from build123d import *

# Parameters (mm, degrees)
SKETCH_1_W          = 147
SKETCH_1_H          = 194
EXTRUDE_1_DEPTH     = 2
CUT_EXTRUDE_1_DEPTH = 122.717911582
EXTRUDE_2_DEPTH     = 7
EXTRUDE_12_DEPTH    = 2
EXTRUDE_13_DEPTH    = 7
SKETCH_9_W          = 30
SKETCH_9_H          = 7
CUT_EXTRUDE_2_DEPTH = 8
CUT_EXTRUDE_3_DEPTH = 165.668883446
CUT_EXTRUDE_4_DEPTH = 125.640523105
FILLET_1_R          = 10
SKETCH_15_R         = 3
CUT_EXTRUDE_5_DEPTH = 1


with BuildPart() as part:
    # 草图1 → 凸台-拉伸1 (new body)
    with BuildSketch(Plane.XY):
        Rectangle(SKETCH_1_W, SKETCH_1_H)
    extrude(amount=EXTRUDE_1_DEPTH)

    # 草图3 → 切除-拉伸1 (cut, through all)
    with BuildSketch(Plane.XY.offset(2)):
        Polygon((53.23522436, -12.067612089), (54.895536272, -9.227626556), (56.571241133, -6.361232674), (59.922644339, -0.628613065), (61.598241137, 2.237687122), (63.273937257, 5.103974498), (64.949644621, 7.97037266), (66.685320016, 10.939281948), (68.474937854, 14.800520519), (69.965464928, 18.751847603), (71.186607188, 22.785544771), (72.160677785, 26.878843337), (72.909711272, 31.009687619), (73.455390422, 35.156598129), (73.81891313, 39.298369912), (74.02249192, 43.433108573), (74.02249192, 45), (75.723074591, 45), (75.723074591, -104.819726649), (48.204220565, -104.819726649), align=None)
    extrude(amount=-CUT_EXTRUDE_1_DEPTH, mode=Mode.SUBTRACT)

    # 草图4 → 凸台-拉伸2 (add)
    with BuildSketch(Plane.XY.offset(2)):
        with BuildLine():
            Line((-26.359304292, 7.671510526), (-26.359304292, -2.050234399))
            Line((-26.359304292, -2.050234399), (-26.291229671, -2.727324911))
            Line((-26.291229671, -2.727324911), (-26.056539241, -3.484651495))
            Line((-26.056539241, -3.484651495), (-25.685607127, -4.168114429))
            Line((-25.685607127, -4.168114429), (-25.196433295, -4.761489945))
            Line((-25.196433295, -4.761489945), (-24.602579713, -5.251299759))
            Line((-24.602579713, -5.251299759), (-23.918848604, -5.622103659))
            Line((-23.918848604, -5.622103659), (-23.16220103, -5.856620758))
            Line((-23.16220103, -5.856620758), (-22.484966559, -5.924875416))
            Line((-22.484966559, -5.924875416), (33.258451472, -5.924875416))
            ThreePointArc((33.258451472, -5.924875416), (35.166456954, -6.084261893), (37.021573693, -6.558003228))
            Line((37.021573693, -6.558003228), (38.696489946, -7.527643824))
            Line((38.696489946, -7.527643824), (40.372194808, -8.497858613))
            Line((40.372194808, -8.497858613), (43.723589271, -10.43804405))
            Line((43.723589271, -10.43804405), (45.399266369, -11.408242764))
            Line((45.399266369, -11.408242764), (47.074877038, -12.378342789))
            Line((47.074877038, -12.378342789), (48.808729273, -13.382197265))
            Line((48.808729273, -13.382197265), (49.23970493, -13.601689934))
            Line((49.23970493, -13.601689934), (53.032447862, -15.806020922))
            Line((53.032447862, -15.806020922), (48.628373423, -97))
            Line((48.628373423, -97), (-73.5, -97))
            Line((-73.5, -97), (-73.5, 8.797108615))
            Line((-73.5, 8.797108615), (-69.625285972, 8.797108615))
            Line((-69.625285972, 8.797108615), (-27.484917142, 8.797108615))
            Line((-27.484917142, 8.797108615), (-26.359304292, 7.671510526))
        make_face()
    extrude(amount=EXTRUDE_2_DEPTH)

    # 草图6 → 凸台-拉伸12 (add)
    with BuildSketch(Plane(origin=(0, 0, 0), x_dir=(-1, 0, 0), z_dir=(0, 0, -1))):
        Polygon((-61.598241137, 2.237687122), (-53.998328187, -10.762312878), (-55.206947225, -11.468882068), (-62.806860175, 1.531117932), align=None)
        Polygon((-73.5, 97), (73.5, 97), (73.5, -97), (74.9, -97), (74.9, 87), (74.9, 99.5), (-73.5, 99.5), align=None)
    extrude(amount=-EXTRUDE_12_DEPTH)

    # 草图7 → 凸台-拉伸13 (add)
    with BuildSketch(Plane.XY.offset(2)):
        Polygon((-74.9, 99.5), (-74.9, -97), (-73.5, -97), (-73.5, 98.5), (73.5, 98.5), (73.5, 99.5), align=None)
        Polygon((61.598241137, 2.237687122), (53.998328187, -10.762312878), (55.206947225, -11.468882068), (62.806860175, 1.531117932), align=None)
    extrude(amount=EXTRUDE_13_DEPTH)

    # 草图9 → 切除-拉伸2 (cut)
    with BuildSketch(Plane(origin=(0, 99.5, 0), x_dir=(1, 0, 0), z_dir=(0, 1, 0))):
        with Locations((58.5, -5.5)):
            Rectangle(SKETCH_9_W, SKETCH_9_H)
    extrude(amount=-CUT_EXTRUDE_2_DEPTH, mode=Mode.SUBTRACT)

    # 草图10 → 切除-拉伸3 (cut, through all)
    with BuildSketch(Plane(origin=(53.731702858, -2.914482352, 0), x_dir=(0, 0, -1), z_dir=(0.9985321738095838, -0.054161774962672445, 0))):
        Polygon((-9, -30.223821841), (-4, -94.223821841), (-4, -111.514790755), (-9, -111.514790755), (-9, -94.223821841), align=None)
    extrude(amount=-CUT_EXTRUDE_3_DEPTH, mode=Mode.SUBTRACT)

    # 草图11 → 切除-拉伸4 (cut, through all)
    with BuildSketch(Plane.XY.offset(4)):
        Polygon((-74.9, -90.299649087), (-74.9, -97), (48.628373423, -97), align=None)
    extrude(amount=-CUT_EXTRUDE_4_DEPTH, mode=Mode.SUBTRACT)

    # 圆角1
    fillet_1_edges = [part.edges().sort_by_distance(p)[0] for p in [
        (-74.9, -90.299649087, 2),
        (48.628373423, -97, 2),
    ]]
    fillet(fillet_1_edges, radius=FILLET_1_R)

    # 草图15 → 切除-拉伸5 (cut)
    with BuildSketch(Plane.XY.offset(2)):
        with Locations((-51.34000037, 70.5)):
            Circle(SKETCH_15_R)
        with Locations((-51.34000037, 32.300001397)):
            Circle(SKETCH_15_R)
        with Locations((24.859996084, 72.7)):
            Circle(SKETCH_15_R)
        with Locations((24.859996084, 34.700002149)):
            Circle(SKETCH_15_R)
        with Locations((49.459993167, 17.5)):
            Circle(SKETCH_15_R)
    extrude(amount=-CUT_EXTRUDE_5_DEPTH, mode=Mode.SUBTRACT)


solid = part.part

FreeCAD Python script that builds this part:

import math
import FreeCAD as App
import Part
import Sketcher


def edges_at(feature, points):
    """Names of the edges that pass closest to the given points."""
    edges = feature.Shape.Edges
    near = lambda p: min(range(len(edges)), key=lambda i: edges[i].distToShape(Part.Vertex(*p))[0])
    return sorted({f"Edge{near(p) + 1}" for p in points})


def add_polygon(sketch, points):
    """Adds a closed chain of lines whose ends are joined by coincident constraints."""
    first, n = sketch.GeometryCount, len(points)
    for a, b in zip(points, points[1:] + points[:1]):
        sketch.addGeometry(Part.LineSegment(App.Vector(*a, 0), App.Vector(*b, 0)), False)
    for i in range(n):
        sketch.addConstraint(Sketcher.Constraint("Coincident", first + i, 2, first + (i + 1) % n, 1))

doc = App.newDocument("Part")
body = doc.addObject("PartDesign::Body", "Body")

# Sketch on XY plane
sketch1 = body.newObject("Sketcher::SketchObject", "Sketch")
sketch1.AttachmentSupport = (doc.getObject("XY_Plane"), [""])
sketch1.MapMode = "FlatFace"
add_polygon(sketch1, [(-74, 97), (-74, -97), (74, -97), (74, 97)])  # lines 0-3
sketch1.addConstraint([
    Sketcher.Constraint("Vertical", 0),
    Sketcher.Constraint("Horizontal", 1),
    Sketcher.Constraint("Vertical", 2),
    Sketcher.Constraint("Horizontal", 3),
    Sketcher.Constraint("Symmetric", 0, 2, 2, 2, -1, 1),
    Sketcher.Constraint("DistanceX", 1, 1, 1, 2, 147.0),
    Sketcher.Constraint("DistanceY", 0, 2, 0, 1, 194.0),
])
pad1 = body.newObject("PartDesign::Pad", "Pad")
pad1.Profile = sketch1
pad1.Length = 2

# Sketch on XY plane
sketch2 = body.newObject("Sketcher::SketchObject", "Sketch001")
sketch2.AttachmentSupport = (doc.getObject("XY_Plane"), [""])
sketch2.MapMode = "FlatFace"
sketch2.AttachmentOffset = App.Placement(App.Vector(0, 0, 2), App.Rotation())
add_polygon(sketch2, [(54.9, -9.2), (53.2, -12.1), (48.2, -104.8), (75.7, -104.8), (75.7, 45), (74, 45), (74, 43.4), (73.8, 39.3), (73.5, 35.2), (72.9, 31), (72.2, 26.9), (71.2, 22.8), (70, 18.8), (68.5, 14.8), (66.7, 10.9), (64.9, 8), (63.3, 5.1), (61.6, 2.2), (59.9, -0.6), (56.6, -6.4)])  # lines 0-19
sketch2.addConstraint([
    Sketcher.Constraint("Horizontal", 2),
    Sketcher.Constraint("Vertical", 3),
    Sketcher.Constraint("Horizontal", 4),
    Sketcher.Constraint("Vertical", 5),
    Sketcher.Constraint("Parallel", 0, 14),
    Sketcher.Constraint("Parallel", 0, 16),
    Sketcher.Constraint("Parallel", 16, 18),
    Sketcher.Constraint("Parallel", 15, 19),
    Sketcher.Constraint("DistanceY", -1, 1, 3, 2, 45.0),
    Sketcher.Constraint("DistanceX", 15, 2, 12, 2, 5.201001),
    Sketcher.Constraint("DistanceX", 17, 2, 14, 2, 5.027),
    Sketcher.Constraint("DistanceY", 0, 2, 17, 2, 11.438999),
    Sketcher.Constraint("DistanceX", 18, 2, 16, 2, 5.027),
    Sketcher.Constraint("Distance", 10, 4.207601),
    Sketcher.Constraint("DistanceY", 5, 2, 5, 1, 1.566891),
    Sketcher.Constraint("DistanceY", -1, 1, 7, 2, 35.156598),
    Sketcher.Constraint("DistanceX", 7, 2, 5, 2, 0.567101),
    Sketcher.Constraint("DistanceX", 8, 2, 6, 2, 0.909202),
    Sketcher.Constraint("DistanceY", 10, 2, 9, 2, 4.093299),
    Sketcher.Constraint("DistanceY", 15, 2, 14, 2, 2.866398),
    Sketcher.Constraint("DistanceY", 0, 2, 16, 2, 14.305299),
    Sketcher.Constraint("DistanceX", 19, 2, 15, 2, 8.378401),
    Sketcher.Constraint("DistanceY", 19, 2, 15, 2, 14.331601),
    Sketcher.Constraint("Distance", 1, 92.888459),
    Sketcher.Constraint("Distance", 8, 4.182659),
    Sketcher.Constraint("Distance", 12, 4.22311),
    Sketcher.Constraint("Distance", 14, 3.439039),
    Sketcher.Constraint("Distance", 19, 3.320271),
    Sketcher.Constraint("DistanceX", 2, 1, 2, 2, 27.518854),
    Sketcher.Constraint("DistanceX", 4, 2, 4, 1, 1.700583),
    Sketcher.Constraint("DistanceY", 3, 1, 3, 2, 149.819727),
    Sketcher.Constraint("DistanceX", -1, 1, 1, 2, 48.204221),
    Sketcher.Constraint("DistanceY", -1, 1, 6, 2, 39.29837),
    Sketcher.Constraint("DistanceX", -1, 1, 8, 2, 72.909711),
    Sketcher.Constraint("DistanceY", -1, 1, 12, 2, 14.800521),
    Sketcher.Constraint("DistanceX", -1, 1, 13, 2, 66.68532),
    Sketcher.Constraint("DistanceY", -1, 1, 13, 2, 10.939282),
    Sketcher.Constraint("DistanceY", 11, 2, 8, 2, 12.25784),
    Sketcher.Constraint("DistanceX", 12, 2, 10, 2, 2.711669),
    Sketcher.Constraint("DistanceY", 13, 2, 9, 2, 15.939561),
])
pocket1 = body.newObject("PartDesign::Pocket", "Pocket")
pocket1.Profile = sketch2
pocket1.Type = "ThroughAll"

# Sketch on XY plane
sketch3 = body.newObject("Sketcher::SketchObject", "Sketch002")
sketch3.AttachmentSupport = (doc.getObject("XY_Plane"), [""])
sketch3.MapMode = "FlatFace"
sketch3.AttachmentOffset = App.Placement(App.Vector(0, 0, 2), App.Rotation())
sketch3.addGeometry([
    Part.LineSegment(App.Vector(-26.36, -2.05, 0), App.Vector(-26.36, 7.67, 0)),  # 0
    Part.LineSegment(App.Vector(-26.36, 7.67, 0), App.Vector(-27.48, 8.8, 0)),  # 1
    Part.LineSegment(App.Vector(-27.48, 8.8, 0), App.Vector(-73.5, 8.8, 0)),  # 2
    Part.LineSegment(App.Vector(-73.5, 8.8, 0), App.Vector(-73.5, -97, 0)),  # 3
    Part.LineSegment(App.Vector(-73.5, -97, 0), App.Vector(48.63, -97, 0)),  # 4
    Part.LineSegment(App.Vector(48.63, -97, 0), App.Vector(53.03, -15.81, 0)),  # 5
    Part.LineSegment(App.Vector(53.03, -15.81, 0), App.Vector(49.24, -13.6, 0)),  # 6
    Part.LineSegment(App.Vector(49.24, -13.6, 0), App.Vector(48.81, -13.38, 0)),  # 7
    Part.LineSegment(App.Vector(48.81, -13.38, 0), App.Vector(47.07, -12.38, 0)),  # 8
    Part.LineSegment(App.Vector(47.07, -12.38, 0), App.Vector(45.4, -11.41, 0)),  # 9
    Part.LineSegment(App.Vector(45.4, -11.41, 0), App.Vector(43.72, -10.44, 0)),  # 10
    Part.LineSegment(App.Vector(43.72, -10.44, 0), App.Vector(40.37, -8.5, 0)),  # 11
    Part.LineSegment(App.Vector(40.37, -8.5, 0), App.Vector(38.7, -7.53, 0)),  # 12
    Part.LineSegment(App.Vector(38.7, -7.53, 0), App.Vector(37.02, -6.56, 0)),  # 13
    Part.ArcOfCircle(Part.Circle(App.Vector(33.26, -17.42, 0), App.Vector(0, 0, 1), 11.5), math.radians(70.9), math.radians(90)),  # 14
    Part.LineSegment(App.Vector(33.26, -5.92, 0), App.Vector(-22.48, -5.92, 0)),  # 15
    Part.LineSegment(App.Vector(-22.48, -5.92, 0), App.Vector(-23.16, -5.86, 0)),  # 16
    Part.LineSegment(App.Vector(-23.16, -5.86, 0), App.Vector(-23.92, -5.62, 0)),  # 17
    Part.LineSegment(App.Vector(-23.92, -5.62, 0), App.Vector(-24.6, -5.25, 0)),  # 18
    Part.LineSegment(App.Vector(-24.6, -5.25, 0), App.Vector(-25.2, -4.76, 0)),  # 19
    Part.LineSegment(App.Vector(-25.2, -4.76, 0), App.Vector(-25.69, -4.17, 0)),  # 20
    Part.LineSegment(App.Vector(-25.69, -4.17, 0), App.Vector(-26.06, -3.48, 0)),  # 21
    Part.LineSegment(App.Vector(-26.06, -3.48, 0), App.Vector(-26.29, -2.73, 0)),  # 22
    Part.LineSegment(App.Vector(-26.29, -2.73, 0), App.Vector(-26.36, -2.05, 0)),  # 23
], False)
sketch3.addConstraint([
    Sketcher.Constraint("Coincident", 0, 2, 1, 1),
    Sketcher.Constraint("Coincident", 1, 2, 2, 1),
    Sketcher.Constraint("Coincident", 2, 2, 3, 1),
    Sketcher.Constraint("Coincident", 3, 2, 4, 1),
    Sketcher.Constraint("Coincident", 4, 2, 5, 1),
    Sketcher.Constraint("Coincident", 5, 2, 6, 1),
    Sketcher.Constraint("Coincident", 6, 2, 7, 1),
    Sketcher.Constraint("Coincident", 7, 2, 8, 1),
    Sketcher.Constraint("Coincident", 8, 2, 9, 1),
    Sketcher.Constraint("Coincident", 9, 2, 10, 1),
    Sketcher.Constraint("Coincident", 10, 2, 11, 1),
    Sketcher.Constraint("Coincident", 11, 2, 12, 1),
    Sketcher.Constraint("Coincident", 12, 2, 13, 1),
    Sketcher.Constraint("Coincident", 13, 2, 14, 1),
    Sketcher.Constraint("Tangent", 14, 2, 15, 1),
    Sketcher.Constraint("Coincident", 15, 2, 16, 1),
    Sketcher.Constraint("Coincident", 16, 2, 17, 1),
    Sketcher.Constraint("Coincident", 17, 2, 18, 1),
    Sketcher.Constraint("Coincident", 18, 2, 19, 1),
    Sketcher.Constraint("Coincident", 19, 2, 20, 1),
    Sketcher.Constraint("Coincident", 20, 2, 21, 1),
    Sketcher.Constraint("Coincident", 21, 2, 22, 1),
    Sketcher.Constraint("Coincident", 22, 2, 23, 1),
    Sketcher.Constraint("Coincident", 23, 2, 0, 1),
    Sketcher.Constraint("Vertical", 0),
    Sketcher.Constraint("Horizontal", 2),
    Sketcher.Constraint("Vertical", 3),
    Sketcher.Constraint("Horizontal", 4),
    Sketcher.Constraint("Horizontal", 15),
    Sketcher.Constraint("Parallel", 10, 12),
    Sketcher.Constraint("Parallel", 11, 13),
    Sketcher.Constraint("Radius", 14, 11.5),
    Sketcher.Constraint("DistanceY", 3, 2, -1, 1, 97.0),
    Sketcher.Constraint("DistanceX", 2, 2, -1, 1, 73.5),
    Sketcher.Constraint("DistanceY", 19, 2, 0, 2, 12.433),
    Sketcher.Constraint("DistanceX", 15, 2, 15, 1, 55.743418),
    Sketcher.Constraint("DistanceY", 3, 2, 3, 1, 105.797109),
    Sketcher.Constraint("DistanceX", 16, 2, -1, 1, 23.162201),
    Sketcher.Constraint("DistanceY", 18, 2, -1, 1, 5.2513),
    Sketcher.Constraint("DistanceY", 0, 2, 1, 2, 1.125598),
    Sketcher.Constraint("DistanceY", 6, 2, 0, 2, 21.2732),
    Sketcher.Constraint("DistanceY", 8, 2, 9, 2, 0.9701),
    Sketcher.Constraint("DistanceY", 9, 2, 10, 2, 0.970199),
    Sketcher.Constraint("DistanceX", 12, 2, 10, 2, 5.027099),
    Sketcher.Constraint("DistanceY", 10, 2, 12, 2, 2.9104),
    Sketcher.Constraint("Distance", 7, 0.48365),
    Sketcher.Constraint("Distance", 8, 2.003489),
    Sketcher.Constraint("Distance", 10, 1.93628),
    Sketcher.Constraint("Distance", 11, 3.872488),
    Sketcher.Constraint("Distance", 13, 1.935342),
    Sketcher.Constraint("Distance", 19, 0.769789),
    Sketcher.Constraint("DistanceX", 2, 2, 2, 1, 46.015083),
    Sketcher.Constraint("DistanceX", 4, 1, 4, 2, 122.128373),
    Sketcher.Constraint("DistanceY", 0, 1, 0, 2, 9.721745),
    Sketcher.Constraint("DistanceX", -1, 1, 14, 3, 33.258451),
    Sketcher.Constraint("DistanceY", 5, 2, -1, 1, 15.806021),
    Sketcher.Constraint("DistanceX", -1, 1, 7, 2, 48.808729),
    Sketcher.Constraint("DistanceX", -1, 1, 10, 2, 43.723589),
    Sketcher.Constraint("DistanceY", 11, 2, -1, 1, 8.497859),
    Sketcher.Constraint("DistanceY", 16, 2, -1, 1, 5.856621),
    Sketcher.Constraint("DistanceX", 17, 2, -1, 1, 23.918849),
    Sketcher.Constraint("DistanceX", 18, 2, -1, 1, 24.60258),
    Sketcher.Constraint("DistanceX", 21, 2, -1, 1, 26.056539),
    Sketcher.Constraint("DistanceY", 21, 2, -1, 1, 3.484651),
    Sketcher.Constraint("DistanceX", 22, 2, -1, 1, 26.29123),
    Sketcher.Constraint("DistanceX", 0, 2, 6, 2, 75.599009),
    Sketcher.Constraint("DistanceX", 4, 2, 6, 2, 0.611332),
    Sketcher.Constraint("DistanceX", 7, 2, 5, 2, 4.223719),
    Sketcher.Constraint("DistanceY", 15, 2, 17, 2, 0.302772),
    Sketcher.Constraint("DistanceX", 20, 2, 17, 2, 1.766759),
    Sketcher.Constraint("DistanceY", 17, 2, 20, 2, 1.453989),
    Sketcher.Constraint("DistanceY", 20, 2, 22, 2, 1.44079),
])
pad2 = body.newObject("PartDesign::Pad", "Pad001")
pad2.Profile = sketch3
pad2.Length = 7

# Sketch on XY plane
sketch4 = body.newObject("Sketcher::SketchObject", "Sketch003")
sketch4.AttachmentSupport = (doc.getObject("XY_Plane"), [""])
sketch4.MapMode = "FlatFace"
add_polygon(sketch4, [(54, -10.8), (61.6, 2.2), (62.8, 1.5), (55.2, -11.5)])  # lines 0-3
add_polygon(sketch4, [(73.5, 97), (-73.5, 97), (-73.5, -97), (-74.9, -97), (-74.9, 99.5), (73.5, 99.5)])  # lines 4-9
sketch4.addConstraint([
    Sketcher.Constraint("Horizontal", 4),
    Sketcher.Constraint("Vertical", 5),
    Sketcher.Constraint("Horizontal", 6),
    Sketcher.Constraint("Vertical", 7),
    Sketcher.Constraint("Horizontal", 8),
    Sketcher.Constraint("Vertical", 9),
    Sketcher.Constraint("Symmetric", 5, 2, 9, 2, -1, 1),
    Sketcher.Constraint("Perpendicular", 0, 1),
    Sketcher.Constraint("Perpendicular", 1, 2),
    Sketcher.Constraint("Perpendicular", 2, 3),
    Sketcher.Constraint("DistanceX", 4, 2, 4, 1, 147.0),
    Sketcher.Constraint("DistanceY", 5, 2, 5, 1, 194.0),
    Sketcher.Constraint("DistanceX", 6, 2, 6, 1, 1.4),
    Sketcher.Constraint("DistanceY", 7, 1, 7, 2, 196.5),
    Sketcher.Constraint("DistanceY", 2, 2, 1, 2, 13.0),
    Sketcher.Constraint("Distance", 1, 1.4),
    Sketcher.Constraint("Distance", 0, 15.058508),
    Sketcher.Constraint("DistanceX", -1, 1, 0, 2, 61.598241),
    Sketcher.Constraint("DistanceY", -1, 1, 0, 2, 2.237687),
])
pad3 = body.newObject("PartDesign::Pad", "Pad002")
pad3.Profile = sketch4
pad3.Length = 2

# Sketch on XY plane
sketch5 = body.newObject("Sketcher::SketchObject", "Sketch004")
sketch5.AttachmentSupport = (doc.getObject("XY_Plane"), [""])
sketch5.MapMode = "FlatFace"
sketch5.AttachmentOffset = App.Placement(App.Vector(0, 0, 2), App.Rotation())
add_polygon(sketch5, [(-74.9, 99.5), (-74.9, -97), (-73.5, -97), (-73.5, 98.5), (73.5, 98.5), (73.5, 99.5)])  # lines 0-5
add_polygon(sketch5, [(61.6, 2.2), (54, -10.8), (55.2, -11.5), (62.8, 1.5)])  # lines 6-9
sketch5.addConstraint([
    Sketcher.Constraint("Vertical", 0),
    Sketcher.Constraint("Horizontal", 1),
    Sketcher.Constraint("Vertical", 2),
    Sketcher.Constraint("Horizontal", 3),
    Sketcher.Constraint("Vertical", 4),
    Sketcher.Constraint("Horizontal", 5),
    Sketcher.Constraint("Perpendicular", 6, 7),
    Sketcher.Constraint("Perpendicular", 7, 8),
    Sketcher.Constraint("Perpendicular", 8, 9),
    Sketcher.Constraint("DistanceX", 3, 1, 3, 2, 147.0),
    Sketcher.Constraint("DistanceY", 4, 1, 4, 2, 1.0),
    Sketcher.Constraint("DistanceX", 1, 1, 1, 2, 1.4),
    Sketcher.Constraint("DistanceY", 0, 2, 0, 1, 196.5),
    Sketcher.Constraint("DistanceY", 0, 2, -1, 1, 97.0),
    Sketcher.Constraint("DistanceY", 7, 2, 8, 2, 13.0),
    Sketcher.Constraint("Distance", 7, 1.4),
    Sketcher.Constraint("DistanceX", 0, 2, -1, 1, 74.9),
    Sketcher.Constraint("Distance", 6, 15.058508),
    Sketcher.Constraint("DistanceX", -1, 1, 6, 2, 53.998328),
    Sketcher.Constraint("DistanceY", 6, 2, -1, 1, 10.762313),
])
pad4 = body.newObject("PartDesign::Pad", "Pad003")
pad4.Profile = sketch5
pad4.Length = 7

# Sketch on XZ plane
sketch6 = body.newObject("Sketcher::SketchObject", "Sketch005")
sketch6.AttachmentSupport = (doc.getObject("XZ_Plane"), [""])
sketch6.MapMode = "FlatFace"
sketch6.AttachmentOffset = App.Placement(App.Vector(0, 0, -99.5), App.Rotation())
add_polygon(sketch6, [(44, 2), (44, 9), (74, 9), (74, 2)])  # lines 0-3
sketch6.addConstraint([
    Sketcher.Constraint("Vertical", 0),
    Sketcher.Constraint("Horizontal", 1),
    Sketcher.Constraint("Vertical", 2),
    Sketcher.Constraint("Horizontal", 3),
    Sketcher.Constraint("DistanceX", 1, 1, 1, 2, 30.0),
    Sketcher.Constraint("DistanceY", 0, 1, 0, 2, 7.0),
    Sketcher.Constraint("DistanceY", -1, 1, 0, 2, 9.0),
    Sketcher.Constraint("DistanceX", -1, 1, 0, 2, 43.5),
])
pocket2 = body.newObject("PartDesign::Pocket", "Pocket001")
pocket2.Profile = sketch6
pocket2.Length = 8
pocket2.Reversed = True

# Sketch on an angled plane
sketch7 = body.newObject("Sketcher::SketchObject", "Sketch006")
sketch7.Placement = App.Placement(App.Vector(53.731703, -2.914482, 0), App.Rotation(App.Vector(0, 0, -1), App.Vector(0.054161775, 0.998532174, 0), App.Vector(0.998532174, -0.054161775, 0), "ZXY"))
add_polygon(sketch7, [(-4, -94), (-9, -30), (-9, -112), (-4, -112)])  # lines 0-3
sketch7.addConstraint([
    Sketcher.Constraint("Vertical", 1),
    Sketcher.Constraint("Horizontal", 2),
    Sketcher.Constraint("Vertical", 3),
    Sketcher.Constraint("DistanceX", 2, 1, 2, 2, 5.0),
    Sketcher.Constraint("DistanceX", 0, 2, -1, 1, 9.0),
    Sketcher.Constraint("DistanceY", 3, 2, 0, 2, 64.0),
    Sketcher.Constraint("DistanceY", 1, 2, 1, 1, 81.290969),
    Sketcher.Constraint("DistanceY", 0, 2, -1, 1, 30.223822),
])
pocket3 = body.newObject("PartDesign::Pocket", "Pocket002")
pocket3.Profile = sketch7
pocket3.Type = "ThroughAll"

# Sketch on XY plane
sketch8 = body.newObject("Sketcher::SketchObject", "Sketch007")
sketch8.AttachmentSupport = (doc.getObject("XY_Plane"), [""])
sketch8.MapMode = "FlatFace"
sketch8.AttachmentOffset = App.Placement(App.Vector(0, 0, 4), App.Rotation())
add_polygon(sketch8, [(-75, -90), (-75, -97), (49, -97)])  # lines 0-2
sketch8.addConstraint([
    Sketcher.Constraint("Vertical", 0),
    Sketcher.Constraint("Horizontal", 1),
    Sketcher.Constraint("DistanceY", 0, 2, -1, 1, 97.0),
    Sketcher.Constraint("DistanceX", 0, 2, -1, 1, 74.9),
    Sketcher.Constraint("DistanceY", 0, 2, 0, 1, 6.700351),
    Sketcher.Constraint("Distance", 2, 123.709958),
])
pocket4 = body.newObject("PartDesign::Pocket", "Pocket003")
pocket4.Profile = sketch8
pocket4.Type = "ThroughAll"
doc.recompute()

fillet = body.newObject("PartDesign::Fillet", "Fillet")
fillet.Base = (pocket4, edges_at(pocket4, [(-74.9, -90.3, 2), (48.628, -97, 3)]))
fillet.Radius = 10

# Sketch on XY plane
sketch9 = body.newObject("Sketcher::SketchObject", "Sketch008")
sketch9.AttachmentSupport = (doc.getObject("XY_Plane"), [""])
sketch9.MapMode = "FlatFace"
sketch9.AttachmentOffset = App.Placement(App.Vector(0, 0, 2), App.Rotation())
sketch9.addGeometry([
    Part.Circle(App.Vector(-51.3, 70.5, 0), App.Vector(0, 0, 1), 3),  # 0
    Part.Circle(App.Vector(-51.3, 32.3, 0), App.Vector(0, 0, 1), 3),  # 1
    Part.Circle(App.Vector(24.9, 72.7, 0), App.Vector(0, 0, 1), 3),  # 2
    Part.Circle(App.Vector(24.9, 34.7, 0), App.Vector(0, 0, 1), 3),  # 3
    Part.Circle(App.Vector(49.5, 17.5, 0), App.Vector(0, 0, 1), 3),  # 4
], False)
sketch9.addConstraint([
    Sketcher.Constraint("Equal", 0, 1),
    Sketcher.Constraint("Equal", 1, 2),
    Sketcher.Constraint("Equal", 2, 3),
    Sketcher.Constraint("Equal", 3, 4),
    Sketcher.Constraint("Vertical", 0, 3, 1, 3),
    Sketcher.Constraint("Vertical", 2, 3, 3, 3),
    Sketcher.Constraint("Diameter", 0, 6.0),
    Sketcher.Constraint("DistanceY", 4, 3, 0, 3, 53.0),
    Sketcher.Constraint("DistanceY", -1, 1, 0, 3, 70.5),
    Sketcher.Constraint("DistanceY", -1, 1, 1, 3, 32.300001),
    Sketcher.Constraint("DistanceY", -1, 1, 2, 3, 72.7),
    Sketcher.Constraint("DistanceY", 1, 3, 3, 3, 2.400001),
    Sketcher.Constraint("DistanceX", 0, 3, -1, 1, 51.34),
    Sketcher.Constraint("DistanceX", -1, 1, 2, 3, 24.859996),
    Sketcher.Constraint("DistanceX", -1, 1, 4, 3, 49.459993),
])
pocket5 = body.newObject("PartDesign::Pocket", "Pocket004")
pocket5.Profile = sketch9
pocket5.Length = 1

doc.recompute()
